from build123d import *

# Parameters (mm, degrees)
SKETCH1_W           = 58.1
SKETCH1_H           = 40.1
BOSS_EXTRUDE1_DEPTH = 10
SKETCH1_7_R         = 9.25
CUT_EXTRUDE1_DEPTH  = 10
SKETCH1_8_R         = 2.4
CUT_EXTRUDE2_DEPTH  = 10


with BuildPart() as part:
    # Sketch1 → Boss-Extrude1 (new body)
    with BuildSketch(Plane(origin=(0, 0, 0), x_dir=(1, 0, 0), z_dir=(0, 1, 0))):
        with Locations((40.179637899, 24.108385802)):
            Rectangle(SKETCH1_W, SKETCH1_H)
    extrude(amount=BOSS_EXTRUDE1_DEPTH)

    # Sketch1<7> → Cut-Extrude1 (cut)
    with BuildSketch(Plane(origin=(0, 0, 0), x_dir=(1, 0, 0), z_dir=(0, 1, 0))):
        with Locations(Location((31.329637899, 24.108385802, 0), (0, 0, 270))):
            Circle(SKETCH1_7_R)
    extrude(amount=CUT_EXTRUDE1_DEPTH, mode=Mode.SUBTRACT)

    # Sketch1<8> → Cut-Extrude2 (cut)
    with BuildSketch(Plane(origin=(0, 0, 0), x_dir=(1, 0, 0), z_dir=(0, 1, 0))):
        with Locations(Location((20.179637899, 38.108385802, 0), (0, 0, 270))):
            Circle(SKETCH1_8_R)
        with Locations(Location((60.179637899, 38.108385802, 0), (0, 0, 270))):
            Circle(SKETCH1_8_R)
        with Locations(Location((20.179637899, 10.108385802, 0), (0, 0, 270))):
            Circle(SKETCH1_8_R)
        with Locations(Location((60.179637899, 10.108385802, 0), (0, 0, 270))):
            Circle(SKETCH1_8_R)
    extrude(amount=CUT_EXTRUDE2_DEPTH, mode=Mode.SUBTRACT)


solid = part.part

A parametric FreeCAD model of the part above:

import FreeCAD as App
import Part
import Sketcher

V = App.Vector

doc = App.newDocument("Part")
body = doc.addObject("PartDesign::Body", "Body")

sketch1 = body.newObject("Sketcher::SketchObject", "Sketch")
sketch1.AttachmentSupport = (doc.getObject("XZ_Plane"), [""])
sketch1.MapMode = "FlatFace"
sketch1.addGeometry(Part.LineSegment(V(11, -44, 0), V(11, -4, 0)), False)
sketch1.addGeometry(Part.LineSegment(V(11, -4, 0), V(69, -4, 0)), False)
sketch1.addGeometry(Part.LineSegment(V(69, -4, 0), V(69, -44, 0)), False)
sketch1.addGeometry(Part.LineSegment(V(69, -44, 0), V(11, -44, 0)), False)
sketch1.addConstraint(Sketcher.Constraint("Coincident", 0, 2, 1, 1))
sketch1.addConstraint(Sketcher.Constraint("Coincident", 1, 2, 2, 1))
sketch1.addConstraint(Sketcher.Constraint("Coincident", 2, 2, 3, 1))
sketch1.addConstraint(Sketcher.Constraint("Coincident", 3, 2, 0, 1))
sketch1.addConstraint(Sketcher.Constraint("Vertical", 0))
sketch1.addConstraint(Sketcher.Constraint("Horizontal", 1))
sketch1.addConstraint(Sketcher.Constraint("Vertical", 2))
sketch1.addConstraint(Sketcher.Constraint("Horizontal", 3))
sketch1.addConstraint(Sketcher.Constraint("DistanceX", 1, 1, 1, 2, 58.1))
sketch1.addConstraint(Sketcher.Constraint("DistanceY", 0, 1, 0, 2, 40.1))
sketch1.addConstraint(Sketcher.Constraint("DistanceX", -1, 1, 0, 2, 11.129638))
sketch1.addConstraint(Sketcher.Constraint("DistanceY", 0, 2, -1, 1, 4.058386))
pad1 = body.newObject("PartDesign::Pad", "Pad")
pad1.Profile = sketch1
pad1.Length = 10
pad1.Reversed = True

sketch2 = body.newObject("Sketcher::SketchObject", "Sketch001")
sketch2.AttachmentSupport = (doc.getObject("XZ_Plane"), [""])
sketch2.MapMode = "FlatFace"
sketch2.addGeometry(Part.Circle(V(31, -24, 0), V(0, 0, 1), 9), False)
sketch2.addConstraint(Sketcher.Constraint("Diameter", 0, 18.5))
sketch2.addConstraint(Sketcher.Constraint("DistanceX", -1, 1, 0, 3, 31.329638))
sketch2.addConstraint(Sketcher.Constraint("DistanceY", 0, 3, -1, 1, 24.108386))
pocket1 = body.newObject("PartDesign::Pocket", "Pocket")
pocket1.Profile = sketch2
pocket1.Length = 10

sketch3 = body.newObject("Sketcher::SketchObject", "Sketch002")
sketch3.AttachmentSupport = (doc.getObject("XZ_Plane"), [""])
sketch3.MapMode = "FlatFace"
sketch3.addGeometry(Part.Circle(V(20.2, -38.1, 0), V(0, 0, 1), 2.4), False)
sketch3.addGeometry(Part.Circle(V(60.2, -38.1, 0), V(0, 0, 1), 2.4), False)
sketch3.addGeometry(Part.Circle(V(20.2, -10.1, 0), V(0, 0, 1), 2.4), False)
sketch3.addGeometry(Part.Circle(V(60.2, -10.1, 0), V(0, 0, 1), 2.4), False)
sketch3.addConstraint(Sketcher.Constraint("Equal", 0, 1))
sketch3.addConstraint(Sketcher.Constraint("Equal", 1, 2))
sketch3.addConstraint(Sketcher.Constraint("Equal", 2, 3))
sketch3.addConstraint(Sketcher.Constraint("Horizontal", 0, 3, 1, 3))
sketch3.addConstraint(Sketcher.Constraint("Horizontal", 2, 3, 3, 3))
sketch3.addConstraint(Sketcher.Constraint("Vertical", 0, 3, 2, 3))
sketch3.addConstraint(Sketcher.Constraint("Vertical", 1, 3, 3, 3))
sketch3.addConstraint(Sketcher.Constraint("Diameter", 0, 4.8))
sketch3.addConstraint(Sketcher.Constraint("DistanceX", 0, 3, 1, 3, 40.0))
sketch3.addConstraint(Sketcher.Constraint("DistanceY", 0, 3, 2, 3, 28.0))
sketch3.addConstraint(Sketcher.Constraint("DistanceX", -1, 1, 0, 3, 20.179638))
sketch3.addConstraint(Sketcher.Constraint("DistanceY", 0, 3, -1, 1, 38.108386))
pocket2 = body.newObject("PartDesign::Pocket", "Pocket001")
pocket2.Profile = sketch3
pocket2.Length = 10

doc.recompute()
